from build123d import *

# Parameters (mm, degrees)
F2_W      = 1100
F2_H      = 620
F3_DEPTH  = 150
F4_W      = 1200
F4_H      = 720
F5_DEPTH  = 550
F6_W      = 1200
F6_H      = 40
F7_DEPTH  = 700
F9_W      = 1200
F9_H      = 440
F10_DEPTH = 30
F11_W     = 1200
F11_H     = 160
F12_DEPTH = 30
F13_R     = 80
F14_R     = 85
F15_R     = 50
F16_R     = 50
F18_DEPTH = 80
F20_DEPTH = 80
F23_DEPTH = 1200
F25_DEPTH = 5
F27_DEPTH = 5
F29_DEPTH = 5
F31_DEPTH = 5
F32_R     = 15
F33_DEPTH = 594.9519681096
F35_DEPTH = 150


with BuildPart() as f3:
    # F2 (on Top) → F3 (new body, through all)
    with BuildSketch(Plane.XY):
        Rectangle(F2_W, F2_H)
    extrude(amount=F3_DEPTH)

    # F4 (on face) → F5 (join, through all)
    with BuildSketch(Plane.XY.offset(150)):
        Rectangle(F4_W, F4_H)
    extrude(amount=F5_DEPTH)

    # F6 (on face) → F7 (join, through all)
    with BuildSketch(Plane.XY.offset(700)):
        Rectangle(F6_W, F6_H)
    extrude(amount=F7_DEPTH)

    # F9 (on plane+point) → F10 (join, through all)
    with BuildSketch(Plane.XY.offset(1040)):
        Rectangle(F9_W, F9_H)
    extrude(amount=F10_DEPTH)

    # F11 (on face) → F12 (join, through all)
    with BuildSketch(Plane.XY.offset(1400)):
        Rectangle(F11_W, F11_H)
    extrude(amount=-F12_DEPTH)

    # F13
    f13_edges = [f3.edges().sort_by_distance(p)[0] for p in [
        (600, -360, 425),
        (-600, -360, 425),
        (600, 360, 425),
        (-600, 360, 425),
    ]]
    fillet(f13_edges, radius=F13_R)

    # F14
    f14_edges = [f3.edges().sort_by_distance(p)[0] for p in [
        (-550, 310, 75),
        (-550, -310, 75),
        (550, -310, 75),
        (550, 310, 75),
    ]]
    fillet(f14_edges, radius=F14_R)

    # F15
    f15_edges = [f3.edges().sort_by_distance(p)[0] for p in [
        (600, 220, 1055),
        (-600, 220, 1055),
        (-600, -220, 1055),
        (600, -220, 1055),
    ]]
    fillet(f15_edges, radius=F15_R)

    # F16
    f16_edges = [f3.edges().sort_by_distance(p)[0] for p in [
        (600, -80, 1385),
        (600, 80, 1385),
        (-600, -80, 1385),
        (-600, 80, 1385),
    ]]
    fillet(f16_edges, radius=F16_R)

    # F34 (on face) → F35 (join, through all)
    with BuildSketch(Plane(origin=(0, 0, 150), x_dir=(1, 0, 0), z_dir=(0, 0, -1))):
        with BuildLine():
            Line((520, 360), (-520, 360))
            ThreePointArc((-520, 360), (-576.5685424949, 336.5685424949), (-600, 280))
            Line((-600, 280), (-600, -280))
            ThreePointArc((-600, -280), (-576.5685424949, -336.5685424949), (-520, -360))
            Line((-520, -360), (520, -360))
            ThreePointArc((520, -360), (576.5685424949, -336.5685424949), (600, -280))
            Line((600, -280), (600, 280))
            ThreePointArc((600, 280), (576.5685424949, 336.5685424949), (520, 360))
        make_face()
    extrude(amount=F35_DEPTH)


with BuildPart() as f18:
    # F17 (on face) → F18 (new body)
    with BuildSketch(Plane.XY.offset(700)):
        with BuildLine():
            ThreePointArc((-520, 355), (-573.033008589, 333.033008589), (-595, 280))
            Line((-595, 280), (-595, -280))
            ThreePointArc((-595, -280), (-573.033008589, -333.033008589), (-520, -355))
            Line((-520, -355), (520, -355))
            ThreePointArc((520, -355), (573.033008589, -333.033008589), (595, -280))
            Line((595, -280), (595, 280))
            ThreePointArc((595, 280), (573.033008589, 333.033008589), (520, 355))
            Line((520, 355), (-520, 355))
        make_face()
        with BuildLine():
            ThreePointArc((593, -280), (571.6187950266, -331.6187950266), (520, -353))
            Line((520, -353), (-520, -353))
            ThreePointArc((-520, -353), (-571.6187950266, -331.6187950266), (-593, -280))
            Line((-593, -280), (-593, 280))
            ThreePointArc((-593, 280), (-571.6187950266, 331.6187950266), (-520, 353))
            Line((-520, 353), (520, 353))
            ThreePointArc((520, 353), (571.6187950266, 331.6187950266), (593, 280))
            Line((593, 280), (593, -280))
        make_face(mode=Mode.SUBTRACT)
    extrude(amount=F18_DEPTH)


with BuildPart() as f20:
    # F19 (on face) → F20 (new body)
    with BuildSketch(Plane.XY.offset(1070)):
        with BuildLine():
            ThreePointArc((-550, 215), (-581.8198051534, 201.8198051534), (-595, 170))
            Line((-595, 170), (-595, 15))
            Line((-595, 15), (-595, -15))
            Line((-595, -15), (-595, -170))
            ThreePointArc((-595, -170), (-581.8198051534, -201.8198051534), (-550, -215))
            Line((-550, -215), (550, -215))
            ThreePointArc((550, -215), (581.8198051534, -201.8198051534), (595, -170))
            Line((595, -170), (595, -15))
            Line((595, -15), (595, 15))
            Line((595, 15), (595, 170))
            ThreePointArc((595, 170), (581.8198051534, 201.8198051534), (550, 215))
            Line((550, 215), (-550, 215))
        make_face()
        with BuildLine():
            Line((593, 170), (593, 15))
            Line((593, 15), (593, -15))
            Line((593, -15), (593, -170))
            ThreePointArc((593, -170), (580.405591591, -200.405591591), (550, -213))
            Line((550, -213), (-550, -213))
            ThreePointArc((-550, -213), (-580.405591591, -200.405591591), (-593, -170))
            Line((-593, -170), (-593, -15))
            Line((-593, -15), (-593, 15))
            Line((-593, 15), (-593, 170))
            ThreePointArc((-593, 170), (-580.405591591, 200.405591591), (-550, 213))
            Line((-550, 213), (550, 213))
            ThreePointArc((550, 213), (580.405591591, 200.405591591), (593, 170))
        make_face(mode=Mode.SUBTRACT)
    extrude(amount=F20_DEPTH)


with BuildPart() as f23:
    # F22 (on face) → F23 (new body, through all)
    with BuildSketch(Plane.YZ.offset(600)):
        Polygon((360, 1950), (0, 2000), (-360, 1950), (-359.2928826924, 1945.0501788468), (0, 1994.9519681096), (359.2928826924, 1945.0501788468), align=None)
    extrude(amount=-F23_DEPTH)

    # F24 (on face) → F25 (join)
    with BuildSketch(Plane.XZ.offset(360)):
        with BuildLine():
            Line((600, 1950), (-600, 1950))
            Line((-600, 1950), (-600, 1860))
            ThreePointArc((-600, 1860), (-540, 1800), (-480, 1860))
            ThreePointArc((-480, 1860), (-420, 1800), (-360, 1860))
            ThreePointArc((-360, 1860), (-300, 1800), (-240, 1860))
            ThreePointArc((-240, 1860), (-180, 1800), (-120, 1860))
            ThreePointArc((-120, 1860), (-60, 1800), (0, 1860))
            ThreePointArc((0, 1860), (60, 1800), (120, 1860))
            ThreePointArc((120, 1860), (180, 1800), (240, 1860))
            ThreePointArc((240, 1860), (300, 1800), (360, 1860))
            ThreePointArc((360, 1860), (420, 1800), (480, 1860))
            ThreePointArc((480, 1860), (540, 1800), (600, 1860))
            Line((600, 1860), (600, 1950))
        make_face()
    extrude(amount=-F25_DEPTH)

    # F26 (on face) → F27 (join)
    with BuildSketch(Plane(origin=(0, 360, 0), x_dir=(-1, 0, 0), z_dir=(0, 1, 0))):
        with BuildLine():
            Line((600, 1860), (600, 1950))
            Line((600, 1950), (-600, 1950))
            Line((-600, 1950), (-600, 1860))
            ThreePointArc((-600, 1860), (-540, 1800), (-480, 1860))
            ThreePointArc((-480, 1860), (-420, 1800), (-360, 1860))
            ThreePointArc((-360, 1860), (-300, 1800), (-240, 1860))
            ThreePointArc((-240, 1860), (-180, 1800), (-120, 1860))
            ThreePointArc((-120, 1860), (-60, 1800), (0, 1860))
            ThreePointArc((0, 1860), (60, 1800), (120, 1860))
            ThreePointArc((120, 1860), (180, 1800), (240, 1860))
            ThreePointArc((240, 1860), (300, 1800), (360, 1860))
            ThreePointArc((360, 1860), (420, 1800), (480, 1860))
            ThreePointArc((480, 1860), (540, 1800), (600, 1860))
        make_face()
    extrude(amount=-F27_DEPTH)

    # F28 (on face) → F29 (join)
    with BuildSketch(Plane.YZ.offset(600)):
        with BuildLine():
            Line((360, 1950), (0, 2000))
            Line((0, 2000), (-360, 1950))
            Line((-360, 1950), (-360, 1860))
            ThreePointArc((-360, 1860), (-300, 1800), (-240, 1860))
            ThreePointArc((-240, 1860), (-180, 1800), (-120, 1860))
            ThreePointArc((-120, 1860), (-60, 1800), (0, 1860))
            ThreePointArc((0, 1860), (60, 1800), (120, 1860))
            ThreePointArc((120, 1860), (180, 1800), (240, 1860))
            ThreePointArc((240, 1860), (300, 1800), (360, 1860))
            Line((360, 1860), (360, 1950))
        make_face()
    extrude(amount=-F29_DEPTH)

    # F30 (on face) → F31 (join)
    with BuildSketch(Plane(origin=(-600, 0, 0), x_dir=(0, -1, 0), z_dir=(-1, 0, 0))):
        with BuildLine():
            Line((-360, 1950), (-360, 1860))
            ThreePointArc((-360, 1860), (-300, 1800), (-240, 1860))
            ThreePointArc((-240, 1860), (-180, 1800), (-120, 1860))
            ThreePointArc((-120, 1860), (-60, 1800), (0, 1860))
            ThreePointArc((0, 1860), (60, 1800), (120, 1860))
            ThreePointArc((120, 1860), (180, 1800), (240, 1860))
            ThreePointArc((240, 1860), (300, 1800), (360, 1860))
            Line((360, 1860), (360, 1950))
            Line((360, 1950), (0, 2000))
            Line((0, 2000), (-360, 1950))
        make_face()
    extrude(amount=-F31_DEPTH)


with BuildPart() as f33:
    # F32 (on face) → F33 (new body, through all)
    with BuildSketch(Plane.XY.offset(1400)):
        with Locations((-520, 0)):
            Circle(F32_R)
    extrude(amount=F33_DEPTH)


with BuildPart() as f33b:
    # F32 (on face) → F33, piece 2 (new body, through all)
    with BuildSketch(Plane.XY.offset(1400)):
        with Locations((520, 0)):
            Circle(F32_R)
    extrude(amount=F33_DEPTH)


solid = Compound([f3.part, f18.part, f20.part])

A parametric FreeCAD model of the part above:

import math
import FreeCAD as App
import Part
import Sketcher

V = App.Vector
Q = App.Units.Quantity


def edges_at(feature, points):
    """Names of the edges that pass closest to the given points."""
    edges = feature.Shape.Edges
    near = lambda p: min(range(len(edges)), key=lambda i: edges[i].distToShape(Part.Vertex(*p))[0])
    return sorted({f"Edge{near(p) + 1}" for p in points})


def add_polygon(sketch, points):
    """Adds a closed chain of lines whose ends are joined by coincident constraints."""
    first, n = sketch.GeometryCount, len(points)
    for a, b in zip(points, points[1:] + points[:1]):
        sketch.addGeometry(Part.LineSegment(App.Vector(*a, 0), App.Vector(*b, 0)), False)
    for i in range(n):
        sketch.addConstraint(Sketcher.Constraint("Coincident", first + i, 2, first + (i + 1) % n, 1))

doc = App.newDocument("Part")
params = doc.addObject("Spreadsheet::Sheet", "Params")
for row, (alias, value) in enumerate([
    ("sketch1_width", "1100 mm"),
    ("sketch1_height", "620 mm"),
    ("pad1_length", "150 mm"),
    ("sketch2_width", "1200 mm"),
    ("sketch2_height", "720 mm"),
    ("pad2_length", "550 mm"),
    ("sketch3_width", "1200 mm"),
    ("sketch3_height", "40 mm"),
    ("pad3_length", "700 mm"),
    ("sketch4_width", "1200 mm"),
    ("sketch4_height", "440 mm"),
    ("pad4_length", "30 mm"),
    ("sketch5_width", "1200 mm"),
    ("sketch5_height", "160 mm"),
    ("pad5_length", "30 mm"),
    ("fillet_radius", "80 mm"),
    ("fillet2_radius", "85 mm"),
    ("fillet3_radius", "50 mm"),
    ("fillet4_radius", "50 mm"),
    ("sketch6_radius", "80 mm"),
    ("sketch6_width", "1040 mm"),
    ("sketch6_height", "560 mm"),
    ("sketch7_radius", "75 mm"),
    ("sketch7_radius2", "73 mm"),
    ("sketch7_width", "1040 mm"),
    ("sketch7_height", "560 mm"),
    ("pad7_length", "80 mm"),
    ("sketch8_radius", "45 mm"),
    ("sketch8_radius2", "43 mm"),
    ("sketch8_width", "1100 mm"),
    ("sketch8_height", "340 mm"),
    ("pad8_length", "80 mm"),
    ("pad9_length", "1200 mm"),
    ("sketch10_radius", "60 mm"),
    ("sketch10_height", "90 mm"),
    ("pad10_length", "5 mm"),
    ("sketch11_radius", "60 mm"),
    ("sketch11_height", "90 mm"),
    ("pad11_length", "5 mm"),
    ("sketch12_radius", "60 mm"),
    ("sketch12_height", "90 mm"),
    ("pad12_length", "5 mm"),
    ("sketch13_radius", "60 mm"),
    ("sketch13_height", "90 mm"),
    ("pad13_length", "5 mm"),
    ("sketch14_diameter", "30 mm"),
    ("pad14_length", "594.951968 mm"),
    ("sketch15_diameter", "30 mm"),
    ("pad15_length", "594.951968 mm"),
], start=1):
    params.set(f"A{row}", alias)
    params.set(f"B{row}", "=" + value)
    params.setAlias(f"B{row}", alias)

body = doc.addObject("PartDesign::Body", "Body")

# Sketch on XY plane
sketch1 = body.newObject("Sketcher::SketchObject", "Sketch")
sketch1.AttachmentSupport = (doc.getObject("XY_Plane"), [""])
sketch1.MapMode = "FlatFace"
add_polygon(sketch1, [(-550, 310), (-550, -310), (550, -310), (550, 310)])  # lines 0-3
sketch1.addConstraint([
    Sketcher.Constraint("Vertical", 0),
    Sketcher.Constraint("Horizontal", 1),
    Sketcher.Constraint("Vertical", 2),
    Sketcher.Constraint("Horizontal", 3),
    Sketcher.Constraint("Symmetric", 0, 2, 2, 2, -1, 1),
    Sketcher.Constraint("DistanceX", 1, 1, 1, 2, Q("1100 mm")),
    Sketcher.Constraint("DistanceY", 0, 2, 0, 1, Q("620 mm")),
])
sketch1.setExpression("Constraints[9]", "Params.sketch1_width")
sketch1.setExpression("Constraints[10]", "Params.sketch1_height")
pad1 = body.newObject("PartDesign::Pad", "Pad")
pad1.Profile = sketch1
pad1.setExpression("Length", "Params.pad1_length")

# Sketch on XY plane
sketch2 = body.newObject("Sketcher::SketchObject", "Sketch001")
sketch2.AttachmentSupport = (doc.getObject("XY_Plane"), [""])
sketch2.MapMode = "FlatFace"
sketch2.AttachmentOffset = App.Placement(V(0, 0, 150), App.Rotation())
add_polygon(sketch2, [(-600, 360), (-600, -360), (600, -360), (600, 360)])  # lines 0-3
sketch2.addConstraint([
    Sketcher.Constraint("Vertical", 0),
    Sketcher.Constraint("Horizontal", 1),
    Sketcher.Constraint("Vertical", 2),
    Sketcher.Constraint("Horizontal", 3),
    Sketcher.Constraint("Symmetric", 0, 2, 2, 2, -1, 1),
    Sketcher.Constraint("DistanceX", 1, 1, 1, 2, Q("1200 mm")),
    Sketcher.Constraint("DistanceY", 0, 2, 0, 1, Q("720 mm")),
])
sketch2.setExpression("Constraints[9]", "Params.sketch2_width")
sketch2.setExpression("Constraints[10]", "Params.sketch2_height")
pad2 = body.newObject("PartDesign::Pad", "Pad001")
pad2.Profile = sketch2
pad2.setExpression("Length", "Params.pad2_length")

# Sketch on XY plane
sketch3 = body.newObject("Sketcher::SketchObject", "Sketch002")
sketch3.AttachmentSupport = (doc.getObject("XY_Plane"), [""])
sketch3.MapMode = "FlatFace"
sketch3.AttachmentOffset = App.Placement(V(0, 0, 700), App.Rotation())
add_polygon(sketch3, [(-600, 20), (-600, -20), (600, -20), (600, 20)])  # lines 0-3
sketch3.addConstraint([
    Sketcher.Constraint("Vertical", 0),
    Sketcher.Constraint("Horizontal", 1),
    Sketcher.Constraint("Vertical", 2),
    Sketcher.Constraint("Horizontal", 3),
    Sketcher.Constraint("Symmetric", 0, 2, 2, 2, -1, 1),
    Sketcher.Constraint("DistanceX", 1, 1, 1, 2, Q("1200 mm")),
    Sketcher.Constraint("DistanceY", 0, 2, 0, 1, Q("40 mm")),
])
sketch3.setExpression("Constraints[9]", "Params.sketch3_width")
sketch3.setExpression("Constraints[10]", "Params.sketch3_height")
pad3 = body.newObject("PartDesign::Pad", "Pad002")
pad3.Profile = sketch3
pad3.setExpression("Length", "Params.pad3_length")

# Sketch on XY plane
sketch4 = body.newObject("Sketcher::SketchObject", "Sketch003")
sketch4.AttachmentSupport = (doc.getObject("XY_Plane"), [""])
sketch4.MapMode = "FlatFace"
sketch4.AttachmentOffset = App.Placement(V(0, 0, 1040), App.Rotation())
add_polygon(sketch4, [(-600, 220), (-600, -220), (600, -220), (600, 220)])  # lines 0-3
sketch4.addConstraint([
    Sketcher.Constraint("Vertical", 0),
    Sketcher.Constraint("Horizontal", 1),
    Sketcher.Constraint("Vertical", 2),
    Sketcher.Constraint("Horizontal", 3),
    Sketcher.Constraint("Symmetric", 0, 2, 2, 2, -1, 1),
    Sketcher.Constraint("DistanceX", 1, 1, 1, 2, Q("1200 mm")),
    Sketcher.Constraint("DistanceY", 0, 2, 0, 1, Q("440 mm")),
])
sketch4.setExpression("Constraints[9]", "Params.sketch4_width")
sketch4.setExpression("Constraints[10]", "Params.sketch4_height")
pad4 = body.newObject("PartDesign::Pad", "Pad003")
pad4.Profile = sketch4
pad4.setExpression("Length", "Params.pad4_length")

# Sketch on XY plane
sketch5 = body.newObject("Sketcher::SketchObject", "Sketch004")
sketch5.AttachmentSupport = (doc.getObject("XY_Plane"), [""])
sketch5.MapMode = "FlatFace"
sketch5.AttachmentOffset = App.Placement(V(0, 0, 1400), App.Rotation())
add_polygon(sketch5, [(-600, 80), (-600, -80), (600, -80), (600, 80)])  # lines 0-3
sketch5.addConstraint([
    Sketcher.Constraint("Vertical", 0),
    Sketcher.Constraint("Horizontal", 1),
    Sketcher.Constraint("Vertical", 2),
    Sketcher.Constraint("Horizontal", 3),
    Sketcher.Constraint("Symmetric", 0, 2, 2, 2, -1, 1),
    Sketcher.Constraint("DistanceX", 1, 1, 1, 2, Q("1200 mm")),
    Sketcher.Constraint("DistanceY", 0, 2, 0, 1, Q("160 mm")),
])
sketch5.setExpression("Constraints[9]", "Params.sketch5_width")
sketch5.setExpression("Constraints[10]", "Params.sketch5_height")
pad5 = body.newObject("PartDesign::Pad", "Pad004")
pad5.Profile = sketch5
pad5.setExpression("Length", "Params.pad5_length")
pad5.Reversed = True
doc.recompute()

fillet = body.newObject("PartDesign::Fillet", "Fillet")
fillet.Base = (pad5, edges_at(pad5, [
    (600, -360, 425),
    (-600, -360, 425),
    (600, 360, 425),
    (-600, 360, 425),
]))
fillet.setExpression("Radius", "Params.fillet_radius")
doc.recompute()

fillet2 = body.newObject("PartDesign::Fillet", "Fillet001")
fillet2.Base = (fillet, edges_at(fillet, [
    (-550, 310, 75),
    (-550, -310, 75),
    (550, -310, 75),
    (550, 310, 75),
]))
fillet2.setExpression("Radius", "Params.fillet2_radius")
doc.recompute()

fillet3 = body.newObject("PartDesign::Fillet", "Fillet002")
fillet3.Base = (fillet2, edges_at(fillet2, [
    (600, 220, 1055),
    (-600, 220, 1055),
    (-600, -220, 1055),
    (600, -220, 1055),
]))
fillet3.setExpression("Radius", "Params.fillet3_radius")
doc.recompute()

fillet4 = body.newObject("PartDesign::Fillet", "Fillet003")
fillet4.Base = (fillet3, edges_at(fillet3, [
    (600, -80, 1385),
    (600, 80, 1385),
    (-600, -80, 1385),
    (-600, 80, 1385),
]))
fillet4.setExpression("Radius", "Params.fillet4_radius")

# Sketch on XY plane
sketch6 = body.newObject("Sketcher::SketchObject", "Sketch005")
sketch6.AttachmentSupport = (doc.getObject("XY_Plane"), [""])
sketch6.MapMode = "FlatFace"
sketch6.AttachmentOffset = App.Placement(V(0, 0, 150), App.Rotation())
sketch6.addGeometry([
    Part.LineSegment(V(520, -360, 0), V(-520, -360, 0)),  # 0
    Part.ArcOfCircle(Part.Circle(V(-520, -280, 0), V(0, 0, 1), 80), math.radians(180), math.radians(270)),  # 1
    Part.LineSegment(V(-600, -280, 0), V(-600, 280, 0)),  # 2
    Part.ArcOfCircle(Part.Circle(V(-520, 280, 0), V(0, 0, 1), 80), math.radians(90), math.radians(180)),  # 3
    Part.LineSegment(V(-520, 360, 0), V(520, 360, 0)),  # 4
    Part.ArcOfCircle(Part.Circle(V(520, 280, 0), V(0, 0, 1), 80), math.radians(0), math.radians(90)),  # 5
    Part.LineSegment(V(600, 280, 0), V(600, -280, 0)),  # 6
    Part.ArcOfCircle(Part.Circle(V(520, -280, 0), V(0, 0, 1), 80), math.radians(-90), math.radians(0)),  # 7
], False)
sketch6.addConstraint([
    Sketcher.Constraint("Tangent", 0, 2, 1, 2),
    Sketcher.Constraint("Tangent", 1, 1, 2, 1),
    Sketcher.Constraint("Tangent", 2, 2, 3, 2),
    Sketcher.Constraint("Tangent", 3, 1, 4, 1),
    Sketcher.Constraint("Tangent", 4, 2, 5, 2),
    Sketcher.Constraint("Tangent", 5, 1, 6, 1),
    Sketcher.Constraint("Tangent", 6, 2, 7, 2),
    Sketcher.Constraint("Tangent", 7, 1, 0, 1),
    Sketcher.Constraint("Horizontal", 0),
    Sketcher.Constraint("Vertical", 2),
    Sketcher.Constraint("Horizontal", 4),
    Sketcher.Constraint("Vertical", 6),
    Sketcher.Constraint("Equal", 1, 3),
    Sketcher.Constraint("Equal", 3, 5),
    Sketcher.Constraint("Equal", 5, 7),
    Sketcher.Constraint("Symmetric", 1, 3, 5, 3, -1, 1),
    Sketcher.Constraint("Radius", 1, Q("80 mm")),
    Sketcher.Constraint("DistanceX", 0, 2, 0, 1, Q("1040 mm")),
    Sketcher.Constraint("DistanceY", 2, 1, 2, 2, Q("560 mm")),
])
sketch6.setExpression("Constraints[16]", "Params.sketch6_radius")
sketch6.setExpression("Constraints[17]", "Params.sketch6_width")
sketch6.setExpression("Constraints[18]", "Params.sketch6_height")
pad6 = body.newObject("PartDesign::Pad", "Pad005")
pad6.Profile = sketch6
pad6.Type = "UpToLast"
pad6.Reversed = True
body2 = doc.addObject("PartDesign::Body", "Body001")

# Sketch on XY plane
sketch7 = body2.newObject("Sketcher::SketchObject", "Sketch006")
sketch7.AttachmentSupport = (doc.getObject("XY_Plane001"), [""])
sketch7.MapMode = "FlatFace"
sketch7.AttachmentOffset = App.Placement(V(0, 0, 700), App.Rotation())
sketch7.addGeometry([
    Part.ArcOfCircle(Part.Circle(V(-520, 280, 0), V(0, 0, 1), 75), math.radians(90), math.radians(180)),  # 0
    Part.LineSegment(V(-595, 280, 0), V(-595, -280, 0)),  # 1
    Part.ArcOfCircle(Part.Circle(V(-520, -280, 0), V(0, 0, 1), 75), math.radians(180), math.radians(270)),  # 2
    Part.LineSegment(V(-520, -355, 0), V(520, -355, 0)),  # 3
    Part.ArcOfCircle(Part.Circle(V(520, -280, 0), V(0, 0, 1), 75), math.radians(-90), math.radians(0)),  # 4
    Part.LineSegment(V(595, -280, 0), V(595, 280, 0)),  # 5
    Part.ArcOfCircle(Part.Circle(V(520, 280, 0), V(0, 0, 1), 75), math.radians(0), math.radians(90)),  # 6
    Part.LineSegment(V(520, 355, 0), V(-520, 355, 0)),  # 7
    Part.LineSegment(V(593, 280, 0), V(593, -280, 0)),  # 8
    Part.ArcOfCircle(Part.Circle(V(520, -280, 0), V(0, 0, 1), 73), math.radians(-90), math.radians(0)),  # 9
    Part.LineSegment(V(520, -353, 0), V(-520, -353, 0)),  # 10
    Part.ArcOfCircle(Part.Circle(V(-520, -280, 0), V(0, 0, 1), 73), math.radians(180), math.radians(270)),  # 11
    Part.LineSegment(V(-593, -280, 0), V(-593, 280, 0)),  # 12
    Part.ArcOfCircle(Part.Circle(V(-520, 280, 0), V(0, 0, 1), 73), math.radians(90), math.radians(180)),  # 13
    Part.LineSegment(V(-520, 353, 0), V(520, 353, 0)),  # 14
    Part.ArcOfCircle(Part.Circle(V(520, 280, 0), V(0, 0, 1), 73), math.radians(0), math.radians(90)),  # 15
], False)
sketch7.addConstraint([
    Sketcher.Constraint("Tangent", 0, 2, 1, 1),
    Sketcher.Constraint("Tangent", 1, 2, 2, 1),
    Sketcher.Constraint("Tangent", 2, 2, 3, 1),
    Sketcher.Constraint("Tangent", 3, 2, 4, 1),
    Sketcher.Constraint("Tangent", 4, 2, 5, 1),
    Sketcher.Constraint("Tangent", 5, 2, 6, 1),
    Sketcher.Constraint("Tangent", 6, 2, 7, 1),
    Sketcher.Constraint("Tangent", 7, 2, 0, 1),
    Sketcher.Constraint("Tangent", 8, 2, 9, 2),
    Sketcher.Constraint("Tangent", 9, 1, 10, 1),
    Sketcher.Constraint("Tangent", 10, 2, 11, 2),
    Sketcher.Constraint("Tangent", 11, 1, 12, 1),
    Sketcher.Constraint("Tangent", 12, 2, 13, 2),
    Sketcher.Constraint("Tangent", 13, 1, 14, 1),
    Sketcher.Constraint("Tangent", 14, 2, 15, 2),
    Sketcher.Constraint("Tangent", 15, 1, 8, 1),
    Sketcher.Constraint("Vertical", 1),
    Sketcher.Constraint("Horizontal", 3),
    Sketcher.Constraint("Vertical", 5),
    Sketcher.Constraint("Horizontal", 7),
    Sketcher.Constraint("Vertical", 8),
    Sketcher.Constraint("Horizontal", 10),
    Sketcher.Constraint("Vertical", 12),
    Sketcher.Constraint("Horizontal", 14),
    Sketcher.Constraint("Coincident", 9, 3, 4, 3),
    Sketcher.Constraint("Coincident", 11, 3, 2, 3),
    Sketcher.Constraint("Coincident", 13, 3, 0, 3),
    Sketcher.Constraint("Equal", 0, 2),
    Sketcher.Constraint("Equal", 2, 4),
    Sketcher.Constraint("Equal", 4, 6),
    Sketcher.Constraint("Equal", 13, 15),
    Sketcher.Constraint("Symmetric", 0, 3, 4, 3, -1, 1),
    Sketcher.Constraint("Radius", 0, Q("75 mm")),
    Sketcher.Constraint("Radius", 9, Q("73 mm")),
    Sketcher.Constraint("DistanceX", 3, 1, 3, 2, Q("1040 mm")),
    Sketcher.Constraint("DistanceY", 1, 2, 1, 1, Q("560 mm")),
])
sketch7.setExpression("Constraints[32]", "Params.sketch7_radius")
sketch7.setExpression("Constraints[33]", "Params.sketch7_radius2")
sketch7.setExpression("Constraints[34]", "Params.sketch7_width")
sketch7.setExpression("Constraints[35]", "Params.sketch7_height")
pad7 = body2.newObject("PartDesign::Pad", "Pad006")
pad7.Profile = sketch7
pad7.setExpression("Length", "Params.pad7_length")
body3 = doc.addObject("PartDesign::Body", "Body002")

# Sketch on XY plane
sketch8 = body3.newObject("Sketcher::SketchObject", "Sketch007")
sketch8.AttachmentSupport = (doc.getObject("XY_Plane002"), [""])
sketch8.MapMode = "FlatFace"
sketch8.AttachmentOffset = App.Placement(V(0, 0, 1070), App.Rotation())
sketch8.addGeometry([
    Part.ArcOfCircle(Part.Circle(V(-550, 170, 0), V(0, 0, 1), 45), math.radians(90), math.radians(180)),  # 0
    Part.LineSegment(V(-595, 170, 0), V(-595, -170, 0)),  # 1
    Part.ArcOfCircle(Part.Circle(V(-550, -170, 0), V(0, 0, 1), 45), math.radians(180), math.radians(270)),  # 2
    Part.LineSegment(V(-550, -215, 0), V(550, -215, 0)),  # 3
    Part.ArcOfCircle(Part.Circle(V(550, -170, 0), V(0, 0, 1), 45), math.radians(-90), math.radians(0)),  # 4
    Part.LineSegment(V(595, -170, 0), V(595, 170, 0)),  # 5
    Part.ArcOfCircle(Part.Circle(V(550, 170, 0), V(0, 0, 1), 45), math.radians(0), math.radians(90)),  # 6
    Part.LineSegment(V(550, 215, 0), V(-550, 215, 0)),  # 7
    Part.ArcOfCircle(Part.Circle(V(550, 170, 0), V(0, 0, 1), 43), math.radians(0), math.radians(90)),  # 8
    Part.LineSegment(V(593, 170, 0), V(593, -170, 0)),  # 9
    Part.ArcOfCircle(Part.Circle(V(550, -170, 0), V(0, 0, 1), 43), math.radians(-90), math.radians(0)),  # 10
    Part.LineSegment(V(550, -213, 0), V(-550, -213, 0)),  # 11
    Part.ArcOfCircle(Part.Circle(V(-550, -170, 0), V(0, 0, 1), 43), math.radians(180), math.radians(270)),  # 12
    Part.LineSegment(V(-593, -170, 0), V(-593, 170, 0)),  # 13
    Part.ArcOfCircle(Part.Circle(V(-550, 170, 0), V(0, 0, 1), 43), math.radians(90), math.radians(180)),  # 14
    Part.LineSegment(V(-550, 213, 0), V(550, 213, 0)),  # 15
], False)
sketch8.addConstraint([
    Sketcher.Constraint("Tangent", 0, 2, 1, 1),
    Sketcher.Constraint("Tangent", 1, 2, 2, 1),
    Sketcher.Constraint("Tangent", 2, 2, 3, 1),
    Sketcher.Constraint("Tangent", 3, 2, 4, 1),
    Sketcher.Constraint("Tangent", 4, 2, 5, 1),
    Sketcher.Constraint("Tangent", 5, 2, 6, 1),
    Sketcher.Constraint("Tangent", 6, 2, 7, 1),
    Sketcher.Constraint("Tangent", 7, 2, 0, 1),
    Sketcher.Constraint("Tangent", 8, 1, 9, 1),
    Sketcher.Constraint("Tangent", 9, 2, 10, 2),
    Sketcher.Constraint("Tangent", 10, 1, 11, 1),
    Sketcher.Constraint("Tangent", 11, 2, 12, 2),
    Sketcher.Constraint("Tangent", 12, 1, 13, 1),
    Sketcher.Constraint("Tangent", 13, 2, 14, 2),
    Sketcher.Constraint("Tangent", 14, 1, 15, 1),
    Sketcher.Constraint("Tangent", 15, 2, 8, 2),
    Sketcher.Constraint("Vertical", 1),
    Sketcher.Constraint("Horizontal", 3),
    Sketcher.Constraint("Vertical", 5),
    Sketcher.Constraint("Horizontal", 7),
    Sketcher.Constraint("Vertical", 9),
    Sketcher.Constraint("Horizontal", 11),
    Sketcher.Constraint("Vertical", 13),
    Sketcher.Constraint("Horizontal", 15),
    Sketcher.Constraint("Coincident", 8, 3, 6, 3),
    Sketcher.Constraint("Coincident", 10, 3, 4, 3),
    Sketcher.Constraint("Coincident", 12, 3, 2, 3),
    Sketcher.Constraint("Equal", 0, 2),
    Sketcher.Constraint("Equal", 2, 4),
    Sketcher.Constraint("Equal", 4, 6),
    Sketcher.Constraint("Equal", 12, 14),
    Sketcher.Constraint("Symmetric", 0, 3, 4, 3, -1, 1),
    Sketcher.Constraint("Radius", 0, Q("45 mm")),
    Sketcher.Constraint("Radius", 8, Q("43 mm")),
    Sketcher.Constraint("DistanceX", 3, 1, 3, 2, Q("1100 mm")),
    Sketcher.Constraint("DistanceY", 1, 2, 1, 1, Q("340 mm")),
])
sketch8.setExpression("Constraints[32]", "Params.sketch8_radius")
sketch8.setExpression("Constraints[33]", "Params.sketch8_radius2")
sketch8.setExpression("Constraints[34]", "Params.sketch8_width")
sketch8.setExpression("Constraints[35]", "Params.sketch8_height")
pad8 = body3.newObject("PartDesign::Pad", "Pad007")
pad8.Profile = sketch8
pad8.setExpression("Length", "Params.pad8_length")
body4 = doc.addObject("PartDesign::Body", "Body003")

# Sketch on YZ plane
sketch9 = body4.newObject("Sketcher::SketchObject", "Sketch008")
sketch9.AttachmentSupport = (doc.getObject("YZ_Plane003"), [""])
sketch9.MapMode = "FlatFace"
sketch9.AttachmentOffset = App.Placement(V(0, 0, 600), App.Rotation())
add_polygon(sketch9, [(360, 1950), (0, 2000), (-360, 1950), (-359, 1945), (0, 1995), (359, 1945)])  # lines 0-5
sketch9.addConstraint([
    Sketcher.Constraint("Symmetric", 2, 2, 4, 2, -2),
    Sketcher.Constraint("Symmetric", 1, 2, 5, 2, -2),
    Sketcher.Constraint("PointOnObject", 0, 2, -2),
    Sketcher.Constraint("PointOnObject", 3, 2, -2),
    Sketcher.Constraint("Parallel", 1, 3),
    Sketcher.Constraint("DistanceY", -1, 1, 0, 2, Q("2000 mm")),
    Sketcher.Constraint("DistanceX", 1, 2, -1, 1, Q("360 mm")),
    Sketcher.Constraint("DistanceY", -1, 1, 1, 2, Q("1950 mm")),
    Sketcher.Constraint("Distance", 3, Q("362.741732 mm")),
    Sketcher.Constraint("DistanceY", -1, 1, 2, 2, Q("1945.050179 mm")),
])
pad9 = body4.newObject("PartDesign::Pad", "Pad008")
pad9.Profile = sketch9
pad9.setExpression("Length", "Params.pad9_length")
pad9.Reversed = True

# Sketch on XZ plane
sketch10 = body4.newObject("Sketcher::SketchObject", "Sketch009")
sketch10.AttachmentSupport = (doc.getObject("XZ_Plane003"), [""])
sketch10.MapMode = "FlatFace"
sketch10.AttachmentOffset = App.Placement(V(0, 0, 360), App.Rotation())
sketch10.addGeometry([
    Part.LineSegment(V(600, 1950, 0), V(-600, 1950, 0)),  # 0
    Part.LineSegment(V(-600, 1950, 0), V(-600, 1860, 0)),  # 1
    Part.ArcOfCircle(Part.Circle(V(-540, 1860, 0), V(0, 0, 1), 60), math.radians(180), math.radians(360)),  # 2
    Part.ArcOfCircle(Part.Circle(V(-420, 1860, 0), V(0, 0, 1), 60), math.radians(180), math.radians(360)),  # 3
    Part.ArcOfCircle(Part.Circle(V(-300, 1860, 0), V(0, 0, 1), 60), math.radians(180), math.radians(360)),  # 4
    Part.ArcOfCircle(Part.Circle(V(-180, 1860, 0), V(0, 0, 1), 60), math.radians(180), math.radians(360)),  # 5
    Part.ArcOfCircle(Part.Circle(V(-60, 1860, 0), V(0, 0, 1), 60), math.radians(180), math.radians(360)),  # 6
    Part.ArcOfCircle(Part.Circle(V(60, 1860, 0), V(0, 0, 1), 60), math.radians(180), math.radians(360)),  # 7
    Part.ArcOfCircle(Part.Circle(V(180, 1860, 0), V(0, 0, 1), 60), math.radians(180), math.radians(360)),  # 8
    Part.ArcOfCircle(Part.Circle(V(300, 1860, 0), V(0, 0, 1), 60), math.radians(180), math.radians(360)),  # 9
    Part.ArcOfCircle(Part.Circle(V(420, 1860, 0), V(0, 0, 1), 60), math.radians(180), math.radians(360)),  # 10
    Part.ArcOfCircle(Part.Circle(V(540, 1860, 0), V(0, 0, 1), 60), math.radians(180), math.radians(360)),  # 11
    Part.LineSegment(V(600, 1860, 0), V(600, 1950, 0)),  # 12
], False)
sketch10.addConstraint([
    Sketcher.Constraint("Coincident", 0, 2, 1, 1),
    Sketcher.Constraint("Tangent", 1, 2, 2, 1),
    Sketcher.Constraint("Tangent", 2, 2, 3, 1),
    Sketcher.Constraint("Tangent", 3, 2, 4, 1),
    Sketcher.Constraint("Tangent", 4, 2, 5, 1),
    Sketcher.Constraint("Tangent", 5, 2, 6, 1),
    Sketcher.Constraint("Tangent", 6, 2, 7, 1),
    Sketcher.Constraint("Tangent", 7, 2, 8, 1),
    Sketcher.Constraint("Tangent", 8, 2, 9, 1),
    Sketcher.Constraint("Tangent", 9, 2, 10, 1),
    Sketcher.Constraint("Tangent", 10, 2, 11, 1),
    Sketcher.Constraint("Tangent", 11, 2, 12, 1),
    Sketcher.Constraint("Coincident", 12, 2, 0, 1),
    Sketcher.Constraint("Horizontal", 0),
    Sketcher.Constraint("Vertical", 1),
    Sketcher.Constraint("Vertical", 12),
    Sketcher.Constraint("Equal", 2, 3),
    Sketcher.Constraint("Equal", 3, 4),
    Sketcher.Constraint("Equal", 4, 5),
    Sketcher.Constraint("Equal", 5, 6),
    Sketcher.Constraint("Equal", 6, 7),
    Sketcher.Constraint("Equal", 7, 8),
    Sketcher.Constraint("Equal", 8, 9),
    Sketcher.Constraint("Equal", 9, 10),
    Sketcher.Constraint("Equal", 10, 11),
    Sketcher.Constraint("Symmetric", 6, 3, 7, 3, -2),
    Sketcher.Constraint("Horizontal", 2, 3, 3, 3),
    Sketcher.Constraint("Horizontal", 3, 3, 4, 3),
    Sketcher.Constraint("Horizontal", 4, 3, 5, 3),
    Sketcher.Constraint("Horizontal", 5, 3, 6, 3),
    Sketcher.Constraint("Horizontal", 7, 3, 8, 3),
    Sketcher.Constraint("Horizontal", 8, 3, 9, 3),
    Sketcher.Constraint("Horizontal", 9, 3, 10, 3),
    Sketcher.Constraint("Horizontal", 10, 3, 11, 3),
    Sketcher.Constraint("Radius", 2, Q("60 mm")),
    Sketcher.Constraint("DistanceY", 1, 2, 1, 1, Q("90 mm")),
    Sketcher.Constraint("DistanceY", -1, 1, 2, 3, Q("1860 mm")),
])
sketch10.setExpression("Constraints[34]", "Params.sketch10_radius")
sketch10.setExpression("Constraints[35]", "Params.sketch10_height")
pad10 = body4.newObject("PartDesign::Pad", "Pad009")
pad10.Profile = sketch10
pad10.setExpression("Length", "Params.pad10_length")
pad10.Reversed = True

# Sketch on XZ plane
sketch11 = body4.newObject("Sketcher::SketchObject", "Sketch010")
sketch11.AttachmentSupport = (doc.getObject("XZ_Plane003"), [""])
sketch11.MapMode = "FlatFace"
sketch11.AttachmentOffset = App.Placement(V(0, 0, -360), App.Rotation())
sketch11.addGeometry([
    Part.LineSegment(V(-600, 1860, 0), V(-600, 1950, 0)),  # 0
    Part.LineSegment(V(-600, 1950, 0), V(600, 1950, 0)),  # 1
    Part.LineSegment(V(600, 1950, 0), V(600, 1860, 0)),  # 2
    Part.ArcOfCircle(Part.Circle(V(540, 1860, 0), V(0, 0, 1), 60), math.radians(180), math.radians(360)),  # 3
    Part.ArcOfCircle(Part.Circle(V(420, 1860, 0), V(0, 0, 1), 60), math.radians(180), math.radians(360)),  # 4
    Part.ArcOfCircle(Part.Circle(V(300, 1860, 0), V(0, 0, 1), 60), math.radians(180), math.radians(360)),  # 5
    Part.ArcOfCircle(Part.Circle(V(180, 1860, 0), V(0, 0, 1), 60), math.radians(180), math.radians(360)),  # 6
    Part.ArcOfCircle(Part.Circle(V(60, 1860, 0), V(0, 0, 1), 60), math.radians(180), math.radians(360)),  # 7
    Part.ArcOfCircle(Part.Circle(V(-60, 1860, 0), V(0, 0, 1), 60), math.radians(180), math.radians(360)),  # 8
    Part.ArcOfCircle(Part.Circle(V(-180, 1860, 0), V(0, 0, 1), 60), math.radians(180), math.radians(360)),  # 9
    Part.ArcOfCircle(Part.Circle(V(-300, 1860, 0), V(0, 0, 1), 60), math.radians(180), math.radians(360)),  # 10
    Part.ArcOfCircle(Part.Circle(V(-420, 1860, 0), V(0, 0, 1), 60), math.radians(180), math.radians(360)),  # 11
    Part.ArcOfCircle(Part.Circle(V(-540, 1860, 0), V(0, 0, 1), 60), math.radians(180), math.radians(360)),  # 12
], False)
sketch11.addConstraint([
    Sketcher.Constraint("Coincident", 0, 2, 1, 1),
    Sketcher.Constraint("Coincident", 1, 2, 2, 1),
    Sketcher.Constraint("Tangent", 2, 2, 3, 2),
    Sketcher.Constraint("Tangent", 3, 1, 4, 2),
    Sketcher.Constraint("Tangent", 4, 1, 5, 2),
    Sketcher.Constraint("Tangent", 5, 1, 6, 2),
    Sketcher.Constraint("Tangent", 6, 1, 7, 2),
    Sketcher.Constraint("Tangent", 7, 1, 8, 2),
    Sketcher.Constraint("Tangent", 8, 1, 9, 2),
    Sketcher.Constraint("Tangent", 9, 1, 10, 2),
    Sketcher.Constraint("Tangent", 10, 1, 11, 2),
    Sketcher.Constraint("Tangent", 11, 1, 12, 2),
    Sketcher.Constraint("Tangent", 12, 1, 0, 1),
    Sketcher.Constraint("Vertical", 0),
    Sketcher.Constraint("Horizontal", 1),
    Sketcher.Constraint("Vertical", 2),
    Sketcher.Constraint("Equal", 3, 4),
    Sketcher.Constraint("Equal", 4, 5),
    Sketcher.Constraint("Equal", 5, 6),
    Sketcher.Constraint("Equal", 6, 7),
    Sketcher.Constraint("Equal", 7, 8),
    Sketcher.Constraint("Equal", 8, 9),
    Sketcher.Constraint("Equal", 9, 10),
    Sketcher.Constraint("Equal", 10, 11),
    Sketcher.Constraint("Equal", 11, 12),
    Sketcher.Constraint("Symmetric", 7, 3, 8, 3, -2),
    Sketcher.Constraint("Horizontal", 3, 3, 4, 3),
    Sketcher.Constraint("Horizontal", 4, 3, 5, 3),
    Sketcher.Constraint("Horizontal", 5, 3, 6, 3),
    Sketcher.Constraint("Horizontal", 6, 3, 7, 3),
    Sketcher.Constraint("Horizontal", 8, 3, 9, 3),
    Sketcher.Constraint("Horizontal", 9, 3, 10, 3),
    Sketcher.Constraint("Horizontal", 10, 3, 11, 3),
    Sketcher.Constraint("Horizontal", 11, 3, 12, 3),
    Sketcher.Constraint("Radius", 3, Q("60 mm")),
    Sketcher.Constraint("DistanceY", 0, 1, 0, 2, Q("90 mm")),
    Sketcher.Constraint("DistanceY", -1, 1, 3, 3, Q("1860 mm")),
])
sketch11.setExpression("Constraints[34]", "Params.sketch11_radius")
sketch11.setExpression("Constraints[35]", "Params.sketch11_height")
pad11 = body4.newObject("PartDesign::Pad", "Pad010")
pad11.Profile = sketch11
pad11.setExpression("Length", "Params.pad11_length")

# Sketch on YZ plane
sketch12 = body4.newObject("Sketcher::SketchObject", "Sketch011")
sketch12.AttachmentSupport = (doc.getObject("YZ_Plane003"), [""])
sketch12.MapMode = "FlatFace"
sketch12.AttachmentOffset = App.Placement(V(0, 0, 600), App.Rotation())
sketch12.addGeometry([
    Part.LineSegment(V(360, 1950, 0), V(0, 2000, 0)),  # 0
    Part.LineSegment(V(0, 2000, 0), V(-360, 1950, 0)),  # 1
    Part.LineSegment(V(-360, 1950, 0), V(-360, 1860, 0)),  # 2
    Part.ArcOfCircle(Part.Circle(V(-300, 1860, 0), V(0, 0, 1), 60), math.radians(180), math.radians(360)),  # 3
    Part.ArcOfCircle(Part.Circle(V(-180, 1860, 0), V(0, 0, 1), 60), math.radians(180), math.radians(360)),  # 4
    Part.ArcOfCircle(Part.Circle(V(-60, 1860, 0), V(0, 0, 1), 60), math.radians(180), math.radians(360)),  # 5
    Part.ArcOfCircle(Part.Circle(V(60, 1860, 0), V(0, 0, 1), 60), math.radians(180), math.radians(360)),  # 6
    Part.ArcOfCircle(Part.Circle(V(180, 1860, 0), V(0, 0, 1), 60), math.radians(180), math.radians(360)),  # 7
    Part.ArcOfCircle(Part.Circle(V(300, 1860, 0), V(0, 0, 1), 60), math.radians(180), math.radians(360)),  # 8
    Part.LineSegment(V(360, 1860, 0), V(360, 1950, 0)),  # 9
], False)
sketch12.addConstraint([
    Sketcher.Constraint("Coincident", 0, 2, 1, 1),
    Sketcher.Constraint("Coincident", 1, 2, 2, 1),
    Sketcher.Constraint("Tangent", 2, 2, 3, 1),
    Sketcher.Constraint("Tangent", 3, 2, 4, 1),
    Sketcher.Constraint("Tangent", 4, 2, 5, 1),
    Sketcher.Constraint("Tangent", 5, 2, 6, 1),
    Sketcher.Constraint("Tangent", 6, 2, 7, 1),
    Sketcher.Constraint("Tangent", 7, 2, 8, 1),
    Sketcher.Constraint("Tangent", 8, 2, 9, 1),
    Sketcher.Constraint("Coincident", 9, 2, 0, 1),
    Sketcher.Constraint("Vertical", 2),
    Sketcher.Constraint("Vertical", 9),
    Sketcher.Constraint("Equal", 3, 4),
    Sketcher.Constraint("Equal", 4, 5),
    Sketcher.Constraint("Equal", 5, 6),
    Sketcher.Constraint("Equal", 6, 7),
    Sketcher.Constraint("Equal", 7, 8),
    Sketcher.Constraint("Symmetric", 5, 3, 6, 3, -2),
    Sketcher.Constraint("PointOnObject", 0, 2, -2),
    Sketcher.Constraint("Horizontal", 3, 3, 4, 3),
    Sketcher.Constraint("Horizontal", 4, 3, 5, 3),
    Sketcher.Constraint("Horizontal", 6, 3, 7, 3),
    Sketcher.Constraint("Horizontal", 7, 3, 8, 3),
    Sketcher.Constraint("Horizontal", 1, 2, 9, 2),
    Sketcher.Constraint("Radius", 3, Q("60 mm")),
    Sketcher.Constraint("DistanceY", 2, 2, 2, 1, Q("90 mm")),
    Sketcher.Constraint("DistanceY", -1, 1, 3, 3, Q("1860 mm")),
    Sketcher.Constraint("DistanceY", -1, 1, 0, 2, Q("2000 mm")),
])
sketch12.setExpression("Constraints[24]", "Params.sketch12_radius")
sketch12.setExpression("Constraints[25]", "Params.sketch12_height")
pad12 = body4.newObject("PartDesign::Pad", "Pad011")
pad12.Profile = sketch12
pad12.setExpression("Length", "Params.pad12_length")
pad12.Reversed = True

# Sketch on YZ plane
sketch13 = body4.newObject("Sketcher::SketchObject", "Sketch012")
sketch13.AttachmentSupport = (doc.getObject("YZ_Plane003"), [""])
sketch13.MapMode = "FlatFace"
sketch13.AttachmentOffset = App.Placement(V(0, 0, -600), App.Rotation())
sketch13.addGeometry([
    Part.LineSegment(V(360, 1950, 0), V(360, 1860, 0)),  # 0
    Part.ArcOfCircle(Part.Circle(V(300, 1860, 0), V(0, 0, 1), 60), math.radians(180), math.radians(360)),  # 1
    Part.ArcOfCircle(Part.Circle(V(180, 1860, 0), V(0, 0, 1), 60), math.radians(180), math.radians(360)),  # 2
    Part.ArcOfCircle(Part.Circle(V(60, 1860, 0), V(0, 0, 1), 60), math.radians(180), math.radians(360)),  # 3
    Part.ArcOfCircle(Part.Circle(V(-60, 1860, 0), V(0, 0, 1), 60), math.radians(180), math.radians(360)),  # 4
    Part.ArcOfCircle(Part.Circle(V(-180, 1860, 0), V(0, 0, 1), 60), math.radians(180), math.radians(360)),  # 5
    Part.ArcOfCircle(Part.Circle(V(-300, 1860, 0), V(0, 0, 1), 60), math.radians(180), math.radians(360)),  # 6
    Part.LineSegment(V(-360, 1860, 0), V(-360, 1950, 0)),  # 7
    Part.LineSegment(V(-360, 1950, 0), V(0, 2000, 0)),  # 8
    Part.LineSegment(V(0, 2000, 0), V(360, 1950, 0)),  # 9
], False)
sketch13.addConstraint([
    Sketcher.Constraint("Tangent", 0, 2, 1, 2),
    Sketcher.Constraint("Tangent", 1, 1, 2, 2),
    Sketcher.Constraint("Tangent", 2, 1, 3, 2),
    Sketcher.Constraint("Tangent", 3, 1, 4, 2),
    Sketcher.Constraint("Tangent", 4, 1, 5, 2),
    Sketcher.Constraint("Tangent", 5, 1, 6, 2),
    Sketcher.Constraint("Tangent", 6, 1, 7, 1),
    Sketcher.Constraint("Coincident", 7, 2, 8, 1),
    Sketcher.Constraint("Coincident", 8, 2, 9, 1),
    Sketcher.Constraint("Coincident", 9, 2, 0, 1),
    Sketcher.Constraint("Vertical", 0),
    Sketcher.Constraint("Vertical", 7),
    Sketcher.Constraint("Equal", 1, 2),
    Sketcher.Constraint("Equal", 2, 3),
    Sketcher.Constraint("Equal", 3, 4),
    Sketcher.Constraint("Equal", 4, 5),
    Sketcher.Constraint("Equal", 5, 6),
    Sketcher.Constraint("Symmetric", 3, 3, 4, 3, -2),
    Sketcher.Constraint("PointOnObject", 8, 2, -2),
    Sketcher.Constraint("Horizontal", 1, 3, 2, 3),
    Sketcher.Constraint("Horizontal", 2, 3, 3, 3),
    Sketcher.Constraint("Horizontal", 4, 3, 5, 3),
    Sketcher.Constraint("Horizontal", 5, 3, 6, 3),
    Sketcher.Constraint("Horizontal", 7, 2, 9, 2),
    Sketcher.Constraint("Radius", 1, Q("60 mm")),
    Sketcher.Constraint("DistanceY", 0, 2, 0, 1, Q("90 mm")),
    Sketcher.Constraint("DistanceY", -1, 1, 1, 3, Q("1860 mm")),
    Sketcher.Constraint("DistanceY", -1, 1, 8, 2, Q("2000 mm")),
])
sketch13.setExpression("Constraints[24]", "Params.sketch13_radius")
sketch13.setExpression("Constraints[25]", "Params.sketch13_height")
pad13 = body4.newObject("PartDesign::Pad", "Pad012")
pad13.Profile = sketch13
pad13.setExpression("Length", "Params.pad13_length")
body5 = doc.addObject("PartDesign::Body", "Body004")

# Sketch on XY plane
sketch14 = body5.newObject("Sketcher::SketchObject", "Sketch013")
sketch14.AttachmentSupport = (doc.getObject("XY_Plane004"), [""])
sketch14.MapMode = "FlatFace"
sketch14.AttachmentOffset = App.Placement(V(0, 0, 1400), App.Rotation())
sketch14.addGeometry(Part.Circle(V(-520, 0, 0), V(0, 0, 1), 15), False)
sketch14.addConstraint([
    Sketcher.Constraint("PointOnObject", 0, 3, -1),
    Sketcher.Constraint("Diameter", 0, Q("30 mm")),
    Sketcher.Constraint("DistanceX", 0, 3, -1, 1, Q("520 mm")),
])
sketch14.setExpression("Constraints[1]", "Params.sketch14_diameter")
pad14 = body5.newObject("PartDesign::Pad", "Pad013")
pad14.Profile = sketch14
pad14.setExpression("Length", "Params.pad14_length")
body6 = doc.addObject("PartDesign::Body", "Body005")

# Sketch on XY plane
sketch15 = body6.newObject("Sketcher::SketchObject", "Sketch014")
sketch15.AttachmentSupport = (doc.getObject("XY_Plane005"), [""])
sketch15.MapMode = "FlatFace"
sketch15.AttachmentOffset = App.Placement(V(0, 0, 1400), App.Rotation())
sketch15.addGeometry(Part.Circle(V(520, 0, 0), V(0, 0, 1), 15), False)
sketch15.addConstraint([
    Sketcher.Constraint("PointOnObject", 0, 3, -1),
    Sketcher.Constraint("Diameter", 0, Q("30 mm")),
    Sketcher.Constraint("DistanceX", -1, 1, 0, 3, Q("520 mm")),
])
sketch15.setExpression("Constraints[1]", "Params.sketch15_diameter")
pad15 = body6.newObject("PartDesign::Pad", "Pad014")
pad15.Profile = sketch15
pad15.setExpression("Length", "Params.pad15_length")
body4.Visibility = False
body5.Visibility = False
body6.Visibility = False

doc.recompute()
